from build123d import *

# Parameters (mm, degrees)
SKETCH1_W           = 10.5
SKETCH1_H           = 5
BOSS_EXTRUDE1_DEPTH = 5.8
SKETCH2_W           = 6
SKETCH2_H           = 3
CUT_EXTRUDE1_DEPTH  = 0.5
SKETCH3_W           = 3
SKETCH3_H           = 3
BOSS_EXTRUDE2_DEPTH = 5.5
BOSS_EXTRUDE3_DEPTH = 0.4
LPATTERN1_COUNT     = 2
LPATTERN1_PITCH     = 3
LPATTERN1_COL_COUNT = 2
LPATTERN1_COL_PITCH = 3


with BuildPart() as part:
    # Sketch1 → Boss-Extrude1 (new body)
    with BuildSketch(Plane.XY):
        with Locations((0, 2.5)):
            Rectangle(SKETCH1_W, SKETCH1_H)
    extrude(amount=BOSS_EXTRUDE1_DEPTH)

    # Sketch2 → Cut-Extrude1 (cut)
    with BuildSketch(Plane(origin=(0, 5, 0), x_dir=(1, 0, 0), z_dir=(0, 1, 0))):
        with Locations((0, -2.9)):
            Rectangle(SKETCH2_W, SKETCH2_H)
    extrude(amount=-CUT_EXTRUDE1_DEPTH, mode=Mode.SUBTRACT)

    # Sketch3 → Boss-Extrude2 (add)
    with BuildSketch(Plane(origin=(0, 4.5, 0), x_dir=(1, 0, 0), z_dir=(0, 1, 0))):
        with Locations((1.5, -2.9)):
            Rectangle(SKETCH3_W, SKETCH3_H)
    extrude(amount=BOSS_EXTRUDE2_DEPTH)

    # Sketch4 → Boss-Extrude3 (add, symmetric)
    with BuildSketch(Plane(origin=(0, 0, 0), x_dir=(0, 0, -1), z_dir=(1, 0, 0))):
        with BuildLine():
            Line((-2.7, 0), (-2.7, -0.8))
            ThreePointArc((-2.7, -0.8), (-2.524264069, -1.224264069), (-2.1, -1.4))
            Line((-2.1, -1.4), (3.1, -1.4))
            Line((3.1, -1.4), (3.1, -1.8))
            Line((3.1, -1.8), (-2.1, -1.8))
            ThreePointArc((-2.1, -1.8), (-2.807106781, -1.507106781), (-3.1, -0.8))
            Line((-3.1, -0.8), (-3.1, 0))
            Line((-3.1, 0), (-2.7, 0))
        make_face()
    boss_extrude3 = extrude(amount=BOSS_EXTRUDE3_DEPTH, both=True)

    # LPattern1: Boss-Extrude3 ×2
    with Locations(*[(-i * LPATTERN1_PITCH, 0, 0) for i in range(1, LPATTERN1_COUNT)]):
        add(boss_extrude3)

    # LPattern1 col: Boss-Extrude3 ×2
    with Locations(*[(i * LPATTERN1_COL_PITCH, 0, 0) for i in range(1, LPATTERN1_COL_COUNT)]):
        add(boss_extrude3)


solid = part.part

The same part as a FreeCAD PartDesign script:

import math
import FreeCAD as App
import Part
import Sketcher
Q = App.Units.Quantity


def add_polygon(sketch, points):
    """Adds a closed chain of lines whose ends are joined by coincident constraints."""
    first, n = sketch.GeometryCount, len(points)
    for a, b in zip(points, points[1:] + points[:1]):
        sketch.addGeometry(Part.LineSegment(App.Vector(*a, 0), App.Vector(*b, 0)), False)
    for i in range(n):
        sketch.addConstraint(Sketcher.Constraint("Coincident", first + i, 2, first + (i + 1) % n, 1))

doc = App.newDocument("Part")
body = doc.addObject("PartDesign::Body", "Body")

sketch1 = doc.addObject("Sketcher::SketchObject", "Sketch")
body.addObject(sketch1)
sketch1.AttachmentSupport = (doc.XY_Plane, [""])
sketch1.MapMode = "FlatFace"
add_polygon(sketch1, [(-5, 5), (-5, 0), (5, 0), (5, 5)])
sketch1.addConstraint(Sketcher.Constraint("Vertical", 0))
sketch1.addConstraint(Sketcher.Constraint("Horizontal", 1))
sketch1.addConstraint(Sketcher.Constraint("Vertical", 2))
sketch1.addConstraint(Sketcher.Constraint("Horizontal", 3))
sketch1.addConstraint(Sketcher.Constraint("Symmetric", 0, 2, 1, 2, -1, 1))
sketch1.addConstraint(Sketcher.Constraint("DistanceY", 0, 2, 0, 1, Q("5 mm")))
sketch1.addConstraint(Sketcher.Constraint("DistanceX", 1, 1, 1, 2, Q("10.5 mm")))
pad1 = doc.addObject("PartDesign::Pad", "Pad")
body.addObject(pad1)
pad1.Profile = sketch1
pad1.Length = 5.8

sketch2 = doc.addObject("Sketcher::SketchObject", "Sketch001")
body.addObject(sketch2)
sketch2.AttachmentSupport = (doc.XZ_Plane, [""])
sketch2.MapMode = "FlatFace"
sketch2.AttachmentOffset = App.Placement(App.Vector(0, 0, -5), App.Rotation())
add_polygon(sketch2, [(-3, 1.4), (-3, 4.4), (3, 4.4), (3, 1.4)])
sketch2.addConstraint(Sketcher.Constraint("Vertical", 0))
sketch2.addConstraint(Sketcher.Constraint("Horizontal", 1))
sketch2.addConstraint(Sketcher.Constraint("Vertical", 2))
sketch2.addConstraint(Sketcher.Constraint("Horizontal", 3))
sketch2.addConstraint(Sketcher.Constraint("DistanceX", 1, 1, 1, 2, Q("6 mm")))
sketch2.addConstraint(Sketcher.Constraint("DistanceY", 0, 1, 0, 2, Q("3 mm")))
sketch2.addConstraint(Sketcher.Constraint("DistanceX", 0, 2, -1, 1, Q("3 mm")))
sketch2.addConstraint(Sketcher.Constraint("DistanceY", -1, 1, 0, 2, Q("4.4 mm")))
pocket1 = doc.addObject("PartDesign::Pocket", "Pocket")
body.addObject(pocket1)
pocket1.Profile = sketch2
pocket1.Length = 0.5
pocket1.Reversed = True

sketch3 = doc.addObject("Sketcher::SketchObject", "Sketch002")
body.addObject(sketch3)
sketch3.AttachmentSupport = (doc.XZ_Plane, [""])
sketch3.MapMode = "FlatFace"
sketch3.AttachmentOffset = App.Placement(App.Vector(0, 0, -4.5), App.Rotation())
add_polygon(sketch3, [(0, 1.4), (0, 4.4), (3, 4.4), (3, 1.4)])
sketch3.addConstraint(Sketcher.Constraint("Vertical", 0))
sketch3.addConstraint(Sketcher.Constraint("Horizontal", 1))
sketch3.addConstraint(Sketcher.Constraint("Vertical", 2))
sketch3.addConstraint(Sketcher.Constraint("Horizontal", 3))
sketch3.addConstraint(Sketcher.Constraint("PointOnObject", 0, 2, -2))
sketch3.addConstraint(Sketcher.Constraint("Equal", 3, 0))
sketch3.addConstraint(Sketcher.Constraint("DistanceX", 1, 1, 1, 2, Q("3 mm")))
sketch3.addConstraint(Sketcher.Constraint("DistanceY", -1, 1, 0, 2, Q("4.4 mm")))
pad2 = doc.addObject("PartDesign::Pad", "Pad001")
body.addObject(pad2)
pad2.Profile = sketch3
pad2.Length = 5.5
pad2.Reversed = True

sketch4 = doc.addObject("Sketcher::SketchObject", "Sketch003")
body.addObject(sketch4)
sketch4.AttachmentSupport = (doc.YZ_Plane, [""])
sketch4.MapMode = "FlatFace"
sketch4.addGeometry(Part.LineSegment(App.Vector(-0.8, 2.7, 0), App.Vector(0, 2.7, 0)), False)
sketch4.addGeometry(Part.LineSegment(App.Vector(0, 2.7, 0), App.Vector(0, 3.1, 0)), False)
sketch4.addGeometry(Part.LineSegment(App.Vector(0, 3.1, 0), App.Vector(-0.8, 3.1, 0)), False)
sketch4.addGeometry(Part.ArcOfCircle(Part.Circle(App.Vector(-0.8, 2.1, 0), App.Vector(0, 0, 1), 1), math.radians(90), math.radians(180)), False)
sketch4.addGeometry(Part.LineSegment(App.Vector(-1.8, 2.1, 0), App.Vector(-1.8, -3.1, 0)), False)
sketch4.addGeometry(Part.LineSegment(App.Vector(-1.8, -3.1, 0), App.Vector(-1.4, -3.1, 0)), False)
sketch4.addGeometry(Part.LineSegment(App.Vector(-1.4, -3.1, 0), App.Vector(-1.4, 2.1, 0)), False)
sketch4.addGeometry(Part.ArcOfCircle(Part.Circle(App.Vector(-0.8, 2.1, 0), App.Vector(0, 0, 1), 0.6), math.radians(90), math.radians(180)), False)
sketch4.addConstraint(Sketcher.Constraint("Coincident", 0, 2, 1, 1))
sketch4.addConstraint(Sketcher.Constraint("Coincident", 1, 2, 2, 1))
sketch4.addConstraint(Sketcher.Constraint("Tangent", 2, 2, 3, 1))
sketch4.addConstraint(Sketcher.Constraint("Tangent", 3, 2, 4, 1))
sketch4.addConstraint(Sketcher.Constraint("Coincident", 4, 2, 5, 1))
sketch4.addConstraint(Sketcher.Constraint("Coincident", 5, 2, 6, 1))
sketch4.addConstraint(Sketcher.Constraint("Tangent", 6, 2, 7, 2))
sketch4.addConstraint(Sketcher.Constraint("Tangent", 7, 1, 0, 1))
sketch4.addConstraint(Sketcher.Constraint("Horizontal", 0))
sketch4.addConstraint(Sketcher.Constraint("Vertical", 1))
sketch4.addConstraint(Sketcher.Constraint("Horizontal", 2))
sketch4.addConstraint(Sketcher.Constraint("Vertical", 4))
sketch4.addConstraint(Sketcher.Constraint("Horizontal", 5))
sketch4.addConstraint(Sketcher.Constraint("Vertical", 6))
sketch4.addConstraint(Sketcher.Constraint("Coincident", 7, 3, 3, 3))
sketch4.addConstraint(Sketcher.Constraint("PointOnObject", 0, 2, -2))
sketch4.addConstraint(Sketcher.Constraint("Radius", 3, Q("1 mm")))
sketch4.addConstraint(Sketcher.Constraint("Radius", 7, Q("0.6 mm")))
sketch4.addConstraint(Sketcher.Constraint("DistanceX", 0, 1, 0, 2, Q("0.8 mm")))
sketch4.addConstraint(Sketcher.Constraint("DistanceY", 4, 2, 4, 1, Q("5.2 mm")))
sketch4.addConstraint(Sketcher.Constraint("DistanceY", -1, 1, 3, 3, Q("2.1 mm")))
pad3 = doc.addObject("PartDesign::Pad", "Pad002")
body.addObject(pad3)
pad3.Profile = sketch4
pad3.Length = 0.8
pad3.Midplane = True
doc.recompute()

linearpattern = doc.addObject("PartDesign::LinearPattern", "LinearPattern")
body.addObject(linearpattern)
linearpattern.Originals = [pad3]
linearpattern.Direction = (doc.X_Axis, [""])
linearpattern.Mode = "offset"
linearpattern.Offset = 3
linearpattern.Occurrences = 2
linearpattern.Reversed = True
body.Tip = linearpattern
doc.recompute()

linearpattern2 = doc.addObject("PartDesign::LinearPattern", "LinearPattern001")
body.addObject(linearpattern2)
linearpattern2.Originals = [pad3]
linearpattern2.Direction = (doc.X_Axis, [""])
linearpattern2.Mode = "offset"
linearpattern2.Offset = 3
linearpattern2.Occurrences = 2
body.Tip = linearpattern2

doc.recompute()
